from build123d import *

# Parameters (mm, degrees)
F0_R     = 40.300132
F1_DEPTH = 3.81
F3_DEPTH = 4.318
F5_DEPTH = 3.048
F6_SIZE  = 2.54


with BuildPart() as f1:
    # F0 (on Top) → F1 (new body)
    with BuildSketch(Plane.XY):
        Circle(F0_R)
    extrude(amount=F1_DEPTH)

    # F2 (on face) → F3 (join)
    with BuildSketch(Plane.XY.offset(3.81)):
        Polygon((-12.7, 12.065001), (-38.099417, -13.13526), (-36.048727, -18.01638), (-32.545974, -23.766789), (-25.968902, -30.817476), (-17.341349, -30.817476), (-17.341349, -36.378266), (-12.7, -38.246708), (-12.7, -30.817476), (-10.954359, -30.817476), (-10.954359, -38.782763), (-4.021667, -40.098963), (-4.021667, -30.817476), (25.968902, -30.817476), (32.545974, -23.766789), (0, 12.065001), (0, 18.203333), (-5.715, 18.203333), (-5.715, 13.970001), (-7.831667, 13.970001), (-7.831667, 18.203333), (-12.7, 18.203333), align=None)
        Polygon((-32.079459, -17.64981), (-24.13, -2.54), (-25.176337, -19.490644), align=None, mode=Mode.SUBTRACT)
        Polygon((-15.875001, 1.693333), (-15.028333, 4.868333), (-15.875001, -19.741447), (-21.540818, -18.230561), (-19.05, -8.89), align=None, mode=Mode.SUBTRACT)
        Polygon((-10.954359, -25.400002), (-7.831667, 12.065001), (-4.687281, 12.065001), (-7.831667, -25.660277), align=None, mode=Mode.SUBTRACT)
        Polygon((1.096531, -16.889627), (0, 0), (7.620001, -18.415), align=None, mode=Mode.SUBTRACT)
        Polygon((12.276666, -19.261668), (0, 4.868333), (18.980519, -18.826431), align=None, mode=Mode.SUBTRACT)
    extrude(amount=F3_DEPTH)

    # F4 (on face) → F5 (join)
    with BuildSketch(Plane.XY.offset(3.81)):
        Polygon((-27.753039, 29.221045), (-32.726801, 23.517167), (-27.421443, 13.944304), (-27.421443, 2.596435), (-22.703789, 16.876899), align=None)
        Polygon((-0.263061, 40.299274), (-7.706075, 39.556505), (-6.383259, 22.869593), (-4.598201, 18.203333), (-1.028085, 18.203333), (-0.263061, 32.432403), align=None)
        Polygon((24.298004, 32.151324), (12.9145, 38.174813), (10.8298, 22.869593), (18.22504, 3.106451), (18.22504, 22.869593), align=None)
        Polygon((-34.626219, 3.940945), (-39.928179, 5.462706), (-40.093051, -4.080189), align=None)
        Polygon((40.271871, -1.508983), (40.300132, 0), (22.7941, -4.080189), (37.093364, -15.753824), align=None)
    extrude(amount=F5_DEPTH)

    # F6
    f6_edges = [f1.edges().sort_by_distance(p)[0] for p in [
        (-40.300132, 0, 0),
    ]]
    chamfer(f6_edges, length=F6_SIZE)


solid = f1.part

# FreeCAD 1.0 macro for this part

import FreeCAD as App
import Part
import Sketcher
Q = App.Units.Quantity


def edges_at(feature, points):
    """Names of the edges that pass closest to the given points."""
    edges = feature.Shape.Edges
    near = lambda p: min(range(len(edges)), key=lambda i: edges[i].distToShape(Part.Vertex(*p))[0])
    return sorted({f"Edge{near(p) + 1}" for p in points})

doc = App.newDocument("Part")
params = doc.addObject("Spreadsheet::Sheet", "Params")
for row, (alias, value) in enumerate([
    ("pad1_length", "0.15 in"),
    ("sketch2_width", "0.225 in"),
    ("pad2_length", "0.17 in"),
    ("pad3_length", "0.12 in"),
    ("chamfer_size", "0.1 in"),
], start=1):
    params.set(f"A{row}", alias)
    params.set(f"B{row}", "=" + value)
    params.setAlias(f"B{row}", alias)

body = doc.addObject("PartDesign::Body", "Body")

sketch1 = body.newObject("Sketcher::SketchObject", "Sketch")
sketch1.AttachmentSupport = (doc.getObject("XY_Plane"), [""])
sketch1.MapMode = "FlatFace"
sketch1.addGeometry(Part.Circle(App.Vector(0, 0, 0), App.Vector(0, 0, 1), 40), False)
sketch1.addConstraint([
    Sketcher.Constraint("Coincident", 0, 3, -1, 1),
    Sketcher.Constraint("Diameter", 0, 80.600264),
])
pad1 = body.newObject("PartDesign::Pad", "Pad")
pad1.Profile = sketch1
pad1.setExpression("Length", "Params.pad1_length")

sketch2 = body.newObject("Sketcher::SketchObject", "Sketch001")
sketch2.AttachmentSupport = (doc.getObject("XY_Plane"), [""])
sketch2.MapMode = "FlatFace"
sketch2.AttachmentOffset = App.Placement(App.Vector(0, 0, 0.15 * 25.4), App.Rotation())
sketch2.addGeometry([
    Part.LineSegment(App.Vector(-12.7, 12.065001, 0), App.Vector(-38.099417, -13.13526, 0)),
    Part.LineSegment(App.Vector(-38.099417, -13.13526, 0), App.Vector(-36.048727, -18.01638, 0)),
    Part.LineSegment(App.Vector(-36.048727, -18.01638, 0), App.Vector(-32.545974, -23.766789, 0)),
    Part.LineSegment(App.Vector(-32.545974, -23.766789, 0), App.Vector(-25.968902, -30.817476, 0)),
    Part.LineSegment(App.Vector(-25.968902, -30.817476, 0), App.Vector(-17.341349, -30.817476, 0)),
    Part.LineSegment(App.Vector(-17.341349, -30.817476, 0), App.Vector(-17.341349, -36.378266, 0)),
    Part.LineSegment(App.Vector(-17.341349, -36.378266, 0), App.Vector(-12.7, -38.246708, 0)),
    Part.LineSegment(App.Vector(-12.7, -38.246708, 0), App.Vector(-12.7, -30.817476, 0)),
    Part.LineSegment(App.Vector(-12.7, -30.817476, 0), App.Vector(-10.954359, -30.817476, 0)),
    Part.LineSegment(App.Vector(-10.954359, -30.817476, 0), App.Vector(-10.954359, -38.782763, 0)),
    Part.LineSegment(App.Vector(-10.954359, -38.782763, 0), App.Vector(-4.021667, -40.098963, 0)),
    Part.LineSegment(App.Vector(-4.021667, -40.098963, 0), App.Vector(-4.021667, -30.817476, 0)),
    Part.LineSegment(App.Vector(-4.021667, -30.817476, 0), App.Vector(25.968902, -30.817476, 0)),
    Part.LineSegment(App.Vector(25.968902, -30.817476, 0), App.Vector(32.545974, -23.766789, 0)),
    Part.LineSegment(App.Vector(32.545974, -23.766789, 0), App.Vector(0, 12.065001, 0)),
    Part.LineSegment(App.Vector(0, 12.065001, 0), App.Vector(0, 18.203333, 0)),
    Part.LineSegment(App.Vector(0, 18.203333, 0), App.Vector(-5.715, 18.203333, 0)),
    Part.LineSegment(App.Vector(-5.715, 18.203333, 0), App.Vector(-5.715, 13.970001, 0)),
    Part.LineSegment(App.Vector(-5.715, 13.970001, 0), App.Vector(-7.831667, 13.970001, 0)),
    Part.LineSegment(App.Vector(-7.831667, 13.970001, 0), App.Vector(-7.831667, 18.203333, 0)),
    Part.LineSegment(App.Vector(-7.831667, 18.203333, 0), App.Vector(-12.7, 18.203333, 0)),
    Part.LineSegment(App.Vector(-12.7, 18.203333, 0), App.Vector(-12.7, 12.065001, 0)),
    Part.LineSegment(App.Vector(-25.176337, -19.490644, 0), App.Vector(-32.079459, -17.64981, 0)),
    Part.LineSegment(App.Vector(-32.079459, -17.64981, 0), App.Vector(-24.13, -2.54, 0)),
    Part.LineSegment(App.Vector(-24.13, -2.54, 0), App.Vector(-25.176337, -19.490644, 0)),
    Part.LineSegment(App.Vector(-19.05, -8.89, 0), App.Vector(-15.875001, 1.693333, 0)),
    Part.LineSegment(App.Vector(-15.875001, 1.693333, 0), App.Vector(-15.028333, 4.868333, 0)),
    Part.LineSegment(App.Vector(-15.028333, 4.868333, 0), App.Vector(-15.875001, -19.741447, 0)),
    Part.LineSegment(App.Vector(-15.875001, -19.741447, 0), App.Vector(-21.540818, -18.230561, 0)),
    Part.LineSegment(App.Vector(-21.540818, -18.230561, 0), App.Vector(-19.05, -8.89, 0)),
    Part.LineSegment(App.Vector(7.620001, -18.415, 0), App.Vector(1.096531, -16.889627, 0)),
    Part.LineSegment(App.Vector(1.096531, -16.889627, 0), App.Vector(0, 0, 0)),
    Part.LineSegment(App.Vector(0, 0, 0), App.Vector(7.620001, -18.415, 0)),
    Part.LineSegment(App.Vector(18.980519, -18.826431, 0), App.Vector(12.276666, -19.261668, 0)),
    Part.LineSegment(App.Vector(12.276666, -19.261668, 0), App.Vector(0, 4.868333, 0)),
    Part.LineSegment(App.Vector(0, 4.868333, 0), App.Vector(18.980519, -18.826431, 0)),
    Part.LineSegment(App.Vector(-7.831667, -25.660277, 0), App.Vector(-10.954359, -25.400002, 0)),
    Part.LineSegment(App.Vector(-10.954359, -25.400002, 0), App.Vector(-7.831667, 12.065001, 0)),
    Part.LineSegment(App.Vector(-7.831667, 12.065001, 0), App.Vector(-4.687281, 12.065001, 0)),
    Part.LineSegment(App.Vector(-4.687281, 12.065001, 0), App.Vector(-7.831667, -25.660277, 0)),
], False)
sketch2.addConstraint([
    Sketcher.Constraint("Coincident", 0, 2, 1, 1),
    Sketcher.Constraint("Coincident", 1, 2, 2, 1),
    Sketcher.Constraint("Coincident", 2, 2, 3, 1),
    Sketcher.Constraint("Coincident", 3, 2, 4, 1),
    Sketcher.Constraint("Coincident", 4, 2, 5, 1),
    Sketcher.Constraint("Coincident", 5, 2, 6, 1),
    Sketcher.Constraint("Coincident", 6, 2, 7, 1),
    Sketcher.Constraint("Coincident", 7, 2, 8, 1),
    Sketcher.Constraint("Coincident", 8, 2, 9, 1),
    Sketcher.Constraint("Coincident", 9, 2, 10, 1),
    Sketcher.Constraint("Coincident", 10, 2, 11, 1),
    Sketcher.Constraint("Coincident", 11, 2, 12, 1),
    Sketcher.Constraint("Coincident", 12, 2, 13, 1),
    Sketcher.Constraint("Coincident", 13, 2, 14, 1),
    Sketcher.Constraint("Coincident", 14, 2, 15, 1),
    Sketcher.Constraint("Coincident", 15, 2, 16, 1),
    Sketcher.Constraint("Coincident", 16, 2, 17, 1),
    Sketcher.Constraint("Coincident", 17, 2, 18, 1),
    Sketcher.Constraint("Coincident", 18, 2, 19, 1),
    Sketcher.Constraint("Coincident", 19, 2, 20, 1),
    Sketcher.Constraint("Coincident", 20, 2, 21, 1),
    Sketcher.Constraint("Coincident", 21, 2, 0, 1),
    Sketcher.Constraint("Coincident", 22, 2, 23, 1),
    Sketcher.Constraint("Coincident", 23, 2, 24, 1),
    Sketcher.Constraint("Coincident", 24, 2, 22, 1),
    Sketcher.Constraint("Coincident", 25, 2, 26, 1),
    Sketcher.Constraint("Coincident", 26, 2, 27, 1),
    Sketcher.Constraint("Coincident", 27, 2, 28, 1),
    Sketcher.Constraint("Coincident", 28, 2, 29, 1),
    Sketcher.Constraint("Coincident", 29, 2, 25, 1),
    Sketcher.Constraint("Coincident", 30, 2, 31, 1),
    Sketcher.Constraint("Coincident", 31, 2, 32, 1),
    Sketcher.Constraint("Coincident", 32, 2, 30, 1),
    Sketcher.Constraint("Coincident", 33, 2, 34, 1),
    Sketcher.Constraint("Coincident", 34, 2, 35, 1),
    Sketcher.Constraint("Coincident", 35, 2, 33, 1),
    Sketcher.Constraint("Coincident", 36, 2, 37, 1),
    Sketcher.Constraint("Coincident", 37, 2, 38, 1),
    Sketcher.Constraint("Coincident", 38, 2, 39, 1),
    Sketcher.Constraint("Coincident", 39, 2, 36, 1),
    Sketcher.Constraint("Horizontal", 4),
    Sketcher.Constraint("Vertical", 5),
    Sketcher.Constraint("Vertical", 7),
    Sketcher.Constraint("Horizontal", 8),
    Sketcher.Constraint("Vertical", 9),
    Sketcher.Constraint("Vertical", 11),
    Sketcher.Constraint("Horizontal", 12),
    Sketcher.Constraint("Vertical", 15),
    Sketcher.Constraint("Horizontal", 16),
    Sketcher.Constraint("Vertical", 17),
    Sketcher.Constraint("Horizontal", 18),
    Sketcher.Constraint("Vertical", 19),
    Sketcher.Constraint("Horizontal", 20),
    Sketcher.Constraint("Vertical", 21),
    Sketcher.Constraint("Horizontal", 38),
    Sketcher.Constraint("Coincident", 31, 2, -1, 1),
    Sketcher.Constraint("PointOnObject", 14, 2, -2),
    Sketcher.Constraint("PointOnObject", 34, 2, -2),
    Sketcher.Constraint("DistanceY", 36, 2, -1, 1, Q("1.0000001 in")),
    Sketcher.Constraint("DistanceX", 6, 2, -1, 1, Q("0.5 in")),
    Sketcher.Constraint("DistanceX", 20, 2, -1, 1, Q("0.5 in")),
    Sketcher.Constraint("DistanceY", 23, 2, -1, 1, Q("0.1 in")),
    Sketcher.Constraint("DistanceX", -1, 1, 32, 2, Q("0.3 in")),
    Sketcher.Constraint("DistanceX", 25, 2, 17, 2, Q("0.4 in")),
    Sketcher.Constraint("DistanceX", 23, 2, 29, 2, Q("0.2 in")),
    Sketcher.Constraint("DistanceX", 16, 2, 16, 1, Q("0.225 in")),
    Sketcher.Constraint("DistanceY", -1, 1, 17, 2, Q("0.55 in")),
    Sketcher.Constraint("DistanceX", 23, 2, -1, 1, Q("0.95 in")),
    Sketcher.Constraint("DistanceY", 29, 2, -1, 1, Q("0.35 in")),
    Sketcher.Constraint("DistanceY", 25, 2, 20, 2, Q("0.65 in")),
    Sketcher.Constraint("DistanceX", 39, 2, 11, 2, Q("0.15 in")),
    Sketcher.Constraint("DistanceY", -1, 1, 14, 2, Q("0.475 in")),
    Sketcher.Constraint("DistanceY", -1, 1, 21, 2, Q("0.475 in")),
    Sketcher.Constraint("DistanceX", 27, 2, -1, 1, Q("0.625 in")),
    Sketcher.Constraint("DistanceY", 32, 2, -1, 1, Q("0.725 in")),
    Sketcher.Constraint("DistanceY", -1, 1, 37, 2, Q("0.475 in")),
    Sketcher.Constraint("DistanceY", 25, 2, 26, 2, Q("0.125 in")),
    Sketcher.Constraint("DistanceY", 34, 2, 15, 2, Q("0.525 in")),
    Sketcher.Constraint("Distance", 1, 5.294399),
    Sketcher.Constraint("Distance", 3, 9.642098),
    Sketcher.Constraint("Distance", 13, 9.642098),
    Sketcher.Constraint("DistanceX", 8, 1, 8, 2, 1.745641),
    Sketcher.Constraint("DistanceX", 12, 1, 12, 2, 29.990569),
    Sketcher.Constraint("DistanceY", 5, 2, 5, 1, 5.56079),
    Sketcher.Constraint("DistanceY", 7, 1, 7, 2, 7.429232),
    Sketcher.Constraint("DistanceX", 3, 2, -1, 1, 25.968902),
    Sketcher.Constraint("DistanceX", -1, 1, 12, 2, 25.968902),
    Sketcher.Constraint("DistanceY", 10, 2, 9, 2, 1.3162),
    Sketcher.Constraint("DistanceY", 8, 2, 39, 2, 5.157199),
    Sketcher.Constraint("DistanceY", 11, 2, 39, 2, 5.157199),
    Sketcher.Constraint("Distance", 6, 5.003319),
    Sketcher.Constraint("Distance", 22, 7.144352),
    Sketcher.Constraint("Distance", 23, 17.073379),
    Sketcher.Constraint("Distance", 26, 3.285951),
    Sketcher.Constraint("Distance", 27, 24.62434),
    Sketcher.Constraint("Distance", 28, 5.863809),
    Sketcher.Constraint("Distance", 36, 3.13352),
    Sketcher.Constraint("DistanceX", 4, 1, 4, 2, 8.627553),
    Sketcher.Constraint("DistanceX", 18, 2, 18, 1, 2.116667),
    Sketcher.Constraint("DistanceX", 38, 1, 38, 2, 3.144386),
    Sketcher.Constraint("DistanceY", 9, 2, 9, 1, 7.965287),
    Sketcher.Constraint("DistanceY", 15, 1, 15, 2, 6.138332),
    Sketcher.Constraint("DistanceY", 19, 1, 19, 2, 4.233332),
    Sketcher.Constraint("DistanceY", 0, 2, -1, 1, 13.13526),
    Sketcher.Constraint("DistanceY", 1, 2, -1, 1, 18.01638),
    Sketcher.Constraint("DistanceY", 2, 2, -1, 1, 23.766789),
    Sketcher.Constraint("DistanceY", 13, 2, -1, 1, 23.766789),
    Sketcher.Constraint("DistanceX", 22, 2, -1, 1, 32.079459),
    Sketcher.Constraint("DistanceX", 28, 2, -1, 1, 21.540818),
    Sketcher.Constraint("DistanceX", -1, 1, 30, 2, 1.096531),
    Sketcher.Constraint("DistanceY", 33, 2, -1, 1, 19.261668),
    Sketcher.Constraint("DistanceX", -1, 1, 35, 2, 18.980519),
    Sketcher.Constraint("DistanceY", 35, 2, -1, 1, 18.826431),
    Sketcher.Constraint("DistanceX", 36, 2, -1, 1, 10.954359),
    Sketcher.Constraint("DistanceX", 38, 2, -1, 1, 4.687281),
    Sketcher.Constraint("DistanceX", 0, 2, 4, 2, 20.758068),
    Sketcher.Constraint("DistanceX", 22, 2, 24, 2, 6.903122),
    Sketcher.Constraint("DistanceY", 11, 2, 30, 2, 13.927849),
    Sketcher.Constraint("DistanceX", 33, 2, 13, 2, 20.269308),
])
sketch2.setExpression("Constraints[65]", "Params.sketch2_width")
pad2 = body.newObject("PartDesign::Pad", "Pad001")
pad2.Profile = sketch2
pad2.setExpression("Length", "Params.pad2_length")

sketch3 = body.newObject("Sketcher::SketchObject", "Sketch002")
sketch3.AttachmentSupport = (doc.getObject("XY_Plane"), [""])
sketch3.MapMode = "FlatFace"
sketch3.AttachmentOffset = App.Placement(App.Vector(0, 0, 0.15 * 25.4), App.Rotation())
sketch3.addGeometry([
    Part.LineSegment(App.Vector(-27.8, 29.2, 0), App.Vector(-32.7, 23.5, 0)),
    Part.LineSegment(App.Vector(-32.7, 23.5, 0), App.Vector(-27.4, 13.9, 0)),
    Part.LineSegment(App.Vector(-27.4, 13.9, 0), App.Vector(-27.4, 2.6, 0)),
    Part.LineSegment(App.Vector(-27.4, 2.6, 0), App.Vector(-22.7, 16.9, 0)),
    Part.LineSegment(App.Vector(-22.7, 16.9, 0), App.Vector(-27.8, 29.2, 0)),
    Part.LineSegment(App.Vector(-0.3, 40.3, 0), App.Vector(-7.7, 39.6, 0)),
    Part.LineSegment(App.Vector(-7.7, 39.6, 0), App.Vector(-6.4, 22.9, 0)),
    Part.LineSegment(App.Vector(-6.4, 22.9, 0), App.Vector(-4.6, 18.2, 0)),
    Part.LineSegment(App.Vector(-4.6, 18.2, 0), App.Vector(-1, 18.2, 0)),
    Part.LineSegment(App.Vector(-1, 18.2, 0), App.Vector(-0.3, 32.4, 0)),
    Part.LineSegment(App.Vector(-0.3, 32.4, 0), App.Vector(-0.3, 40.3, 0)),
    Part.LineSegment(App.Vector(24.3, 32.2, 0), App.Vector(12.9, 38.2, 0)),
    Part.LineSegment(App.Vector(12.9, 38.2, 0), App.Vector(10.8, 22.9, 0)),
    Part.LineSegment(App.Vector(10.8, 22.9, 0), App.Vector(18.2, 3.1, 0)),
    Part.LineSegment(App.Vector(18.2, 3.1, 0), App.Vector(18.2, 22.9, 0)),
    Part.LineSegment(App.Vector(18.2, 22.9, 0), App.Vector(24.3, 32.2, 0)),
    Part.LineSegment(App.Vector(-34.6, 3.9, 0), App.Vector(-39.9, 5.5, 0)),
    Part.LineSegment(App.Vector(-39.9, 5.5, 0), App.Vector(-40.1, -4.1, 0)),
    Part.LineSegment(App.Vector(-40.1, -4.1, 0), App.Vector(-34.6, 3.9, 0)),
    Part.LineSegment(App.Vector(40.3, -1.5, 0), App.Vector(40.3, 0, 0)),
    Part.LineSegment(App.Vector(40.3, 0, 0), App.Vector(22.8, -4.1, 0)),
    Part.LineSegment(App.Vector(22.8, -4.1, 0), App.Vector(37.1, -15.8, 0)),
    Part.LineSegment(App.Vector(37.1, -15.8, 0), App.Vector(40.3, -1.5, 0)),
], False)
sketch3.addConstraint([
    Sketcher.Constraint("Coincident", 0, 2, 1, 1),
    Sketcher.Constraint("Coincident", 1, 2, 2, 1),
    Sketcher.Constraint("Coincident", 2, 2, 3, 1),
    Sketcher.Constraint("Coincident", 3, 2, 4, 1),
    Sketcher.Constraint("Coincident", 4, 2, 0, 1),
    Sketcher.Constraint("Coincident", 5, 2, 6, 1),
    Sketcher.Constraint("Coincident", 6, 2, 7, 1),
    Sketcher.Constraint("Coincident", 7, 2, 8, 1),
    Sketcher.Constraint("Coincident", 8, 2, 9, 1),
    Sketcher.Constraint("Coincident", 9, 2, 10, 1),
    Sketcher.Constraint("Coincident", 10, 2, 5, 1),
    Sketcher.Constraint("Coincident", 11, 2, 12, 1),
    Sketcher.Constraint("Coincident", 12, 2, 13, 1),
    Sketcher.Constraint("Coincident", 13, 2, 14, 1),
    Sketcher.Constraint("Coincident", 14, 2, 15, 1),
    Sketcher.Constraint("Coincident", 15, 2, 11, 1),
    Sketcher.Constraint("Coincident", 16, 2, 17, 1),
    Sketcher.Constraint("Coincident", 17, 2, 18, 1),
    Sketcher.Constraint("Coincident", 18, 2, 16, 1),
    Sketcher.Constraint("Coincident", 19, 2, 20, 1),
    Sketcher.Constraint("Coincident", 20, 2, 21, 1),
    Sketcher.Constraint("Coincident", 21, 2, 22, 1),
    Sketcher.Constraint("Coincident", 22, 2, 19, 1),
    Sketcher.Constraint("Vertical", 2),
    Sketcher.Constraint("Horizontal", 8),
    Sketcher.Constraint("Vertical", 10),
    Sketcher.Constraint("Vertical", 14),
    Sketcher.Constraint("PointOnObject", 19, 2, -1),
    Sketcher.Constraint("Horizontal", 6, 2, 12, 2),
    Sketcher.Constraint("Horizontal", 12, 2, 14, 2),
    Sketcher.Constraint("Horizontal", 17, 2, 20, 2),
    Sketcher.Constraint("DistanceY", -1, 1, 15, 2, Q("1.2658002 in")),
    Sketcher.Constraint("Distance", 4, 13.336899),
    Sketcher.Constraint("DistanceY", 2, 2, 2, 1, 11.347869),
    Sketcher.Constraint("DistanceY", 10, 1, 10, 2, 7.866871),
    Sketcher.Constraint("DistanceY", 14, 1, 14, 2, 19.763142),
    Sketcher.Constraint("DistanceX", 0, 2, -1, 1, 32.726801),
    Sketcher.Constraint("DistanceY", -1, 1, 3, 2, 16.876899),
    Sketcher.Constraint("DistanceX", 7, 2, -1, 1, 4.598201),
    Sketcher.Constraint("DistanceX", -1, 1, 11, 2, 12.9145),
    Sketcher.Constraint("DistanceX", -1, 1, 12, 2, 10.8298),
    Sketcher.Constraint("DistanceX", -1, 1, 20, 2, 22.7941),
    Sketcher.Constraint("DistanceY", 1, 2, 5, 2, 25.612201),
    Sketcher.Constraint("DistanceX", 6, 2, 9, 2, 6.120198),
    Sketcher.Constraint("DistanceX", 6, 2, 13, 2, 24.608299),
    Sketcher.Constraint("DistanceY", 16, 2, 1, 2, 8.481598),
    Sketcher.Constraint("Distance", 0, 7.567862),
    Sketcher.Constraint("Distance", 6, 16.739261),
    Sketcher.Constraint("Distance", 7, 4.99604),
    Sketcher.Constraint("Distance", 9, 14.249621),
    Sketcher.Constraint("Distance", 11, 12.87892),
    Sketcher.Constraint("Distance", 17, 9.544319),
    Sketcher.Constraint("Distance", 18, 9.706948),
    Sketcher.Constraint("Distance", 22, 14.59515),
    Sketcher.Constraint("DistanceX", 8, 1, 8, 2, 3.570116),
    Sketcher.Constraint("DistanceX", 3, 2, -1, 1, 22.703789),
    Sketcher.Constraint("DistanceX", 4, 2, -1, 1, 27.753039),
    Sketcher.Constraint("DistanceX", 6, 2, -1, 1, 6.383259),
    Sketcher.Constraint("DistanceY", -1, 1, 13, 2, 3.106451),
    Sketcher.Constraint("DistanceX", 16, 2, -1, 1, 39.928179),
    Sketcher.Constraint("DistanceX", 17, 2, -1, 1, 40.093051),
    Sketcher.Constraint("DistanceY", 17, 2, -1, 1, 4.080189),
    Sketcher.Constraint("DistanceX", 18, 2, -1, 1, 34.626219),
    Sketcher.Constraint("DistanceX", -1, 1, 19, 2, 40.300132),
    Sketcher.Constraint("DistanceX", -1, 1, 22, 2, 40.271871),
    Sketcher.Constraint("DistanceX", 0, 2, 1, 2, 5.305358),
    Sketcher.Constraint("DistanceY", 11, 2, 10, 2, 2.124461),
    Sketcher.Constraint("DistanceY", 21, 2, 22, 2, 14.244841),
    Sketcher.Constraint("Distance", 19, 1.509248),
])
pad3 = body.newObject("PartDesign::Pad", "Pad002")
pad3.Profile = sketch3
pad3.setExpression("Length", "Params.pad3_length")
doc.recompute()

chamfer = body.newObject("PartDesign::Chamfer", "Chamfer")
chamfer.Base = (pad3, edges_at(pad3, [(-40.3, 0, 0)]))
chamfer.setExpression("Size", "Params.chamfer_size")

doc.recompute()
